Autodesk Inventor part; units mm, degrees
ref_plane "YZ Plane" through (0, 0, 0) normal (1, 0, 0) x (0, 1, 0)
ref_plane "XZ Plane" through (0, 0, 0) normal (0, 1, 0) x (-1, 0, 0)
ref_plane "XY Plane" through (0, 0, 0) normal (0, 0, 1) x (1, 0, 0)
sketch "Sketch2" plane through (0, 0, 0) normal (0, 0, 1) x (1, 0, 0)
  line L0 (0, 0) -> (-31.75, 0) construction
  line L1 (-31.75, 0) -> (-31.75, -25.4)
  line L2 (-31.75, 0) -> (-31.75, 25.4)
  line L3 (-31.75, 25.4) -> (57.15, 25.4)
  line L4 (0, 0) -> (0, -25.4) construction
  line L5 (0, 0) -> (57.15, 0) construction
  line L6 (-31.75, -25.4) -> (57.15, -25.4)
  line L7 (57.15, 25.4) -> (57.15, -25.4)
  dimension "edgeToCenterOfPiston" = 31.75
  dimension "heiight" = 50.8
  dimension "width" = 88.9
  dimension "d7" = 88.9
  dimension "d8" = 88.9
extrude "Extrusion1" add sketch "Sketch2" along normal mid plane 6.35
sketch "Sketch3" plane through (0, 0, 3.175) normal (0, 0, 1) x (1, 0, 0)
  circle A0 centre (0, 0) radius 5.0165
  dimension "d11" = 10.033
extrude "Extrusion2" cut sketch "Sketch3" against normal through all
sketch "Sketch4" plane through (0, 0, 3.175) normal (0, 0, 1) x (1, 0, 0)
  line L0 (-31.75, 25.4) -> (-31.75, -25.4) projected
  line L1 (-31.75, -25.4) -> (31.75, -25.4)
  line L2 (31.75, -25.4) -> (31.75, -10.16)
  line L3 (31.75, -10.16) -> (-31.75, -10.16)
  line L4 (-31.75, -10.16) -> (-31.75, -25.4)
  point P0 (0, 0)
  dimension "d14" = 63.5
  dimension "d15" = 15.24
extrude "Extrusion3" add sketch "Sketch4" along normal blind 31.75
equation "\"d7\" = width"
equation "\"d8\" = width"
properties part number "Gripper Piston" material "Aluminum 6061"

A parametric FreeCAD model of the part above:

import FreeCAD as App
import Part
import Sketcher

V = App.Vector
Q = App.Units.Quantity


def add_polygon(sketch, points):
    """Adds a closed chain of lines whose ends are joined by coincident constraints."""
    first, n = sketch.GeometryCount, len(points)
    for a, b in zip(points, points[1:] + points[:1]):
        sketch.addGeometry(Part.LineSegment(App.Vector(*a, 0), App.Vector(*b, 0)), False)
    for i in range(n):
        sketch.addConstraint(Sketcher.Constraint("Coincident", first + i, 2, first + (i + 1) % n, 1))

doc = App.newDocument("Part")
body = doc.addObject("PartDesign::Body", "Body")

# Sketch on XY plane
sketch1 = body.newObject("Sketcher::SketchObject", "Sketch")
sketch1.AttachmentSupport = (doc.getObject("XY_Plane"), [""])
sketch1.MapMode = "FlatFace"
add_polygon(sketch1, [(-32, 25), (-32, -25), (57, -25), (57, 25)])  # lines 0-3
sketch1.addConstraint([
    Sketcher.Constraint("Vertical", 0),
    Sketcher.Constraint("Horizontal", 1),
    Sketcher.Constraint("Vertical", 2),
    Sketcher.Constraint("Horizontal", 3),
    Sketcher.Constraint("DistanceY", 0, 2, 0, 1, Q("2 in")),
    Sketcher.Constraint("DistanceX", 1, 1, 1, 2, Q("3.5 in")),
    Sketcher.Constraint("DistanceX", 0, 2, -1, 1, Q("1.25 in")),
    Sketcher.Constraint("DistanceY", 0, 2, -1, 1, Q("1 in")),
])
pad1 = body.newObject("PartDesign::Pad", "Pad")
pad1.Profile = sketch1
pad1.Length = Q("0.25 in")
pad1.Midplane = True

# Sketch on XY plane
sketch2 = body.newObject("Sketcher::SketchObject", "Sketch001")
sketch2.AttachmentSupport = (doc.getObject("XY_Plane"), [""])
sketch2.MapMode = "FlatFace"
sketch2.AttachmentOffset = App.Placement(V(0, 0, 0.125 * 25.4), App.Rotation())
sketch2.addGeometry(Part.Circle(V(0, 0, 0), V(0, 0, 1), 5), False)
sketch2.addConstraint([
    Sketcher.Constraint("Coincident", 0, 3, -1, 1),
    Sketcher.Constraint("Diameter", 0, Q("0.395 in")),
])
pocket1 = body.newObject("PartDesign::Pocket", "Pocket")
pocket1.Profile = sketch2
pocket1.Type = "ThroughAll"

# Sketch on XY plane
sketch3 = body.newObject("Sketcher::SketchObject", "Sketch002")
sketch3.AttachmentSupport = (doc.getObject("XY_Plane"), [""])
sketch3.MapMode = "FlatFace"
sketch3.AttachmentOffset = App.Placement(V(0, 0, 0.125 * 25.4), App.Rotation())
add_polygon(sketch3, [(32, -10), (-32, -10), (-32, -25), (32, -25)])  # lines 0-3
sketch3.addConstraint([
    Sketcher.Constraint("Horizontal", 0),
    Sketcher.Constraint("Vertical", 1),
    Sketcher.Constraint("Horizontal", 2),
    Sketcher.Constraint("Vertical", 3),
    Sketcher.Constraint("DistanceX", 0, 2, 0, 1, Q("2.5 in")),
    Sketcher.Constraint("DistanceY", 1, 2, 1, 1, Q("0.6 in")),
    Sketcher.Constraint("DistanceY", 1, 2, -1, 1, Q("1 in")),
    Sketcher.Constraint("DistanceX", 0, 2, -1, 1, Q("1.25 in")),
])
pad2 = body.newObject("PartDesign::Pad", "Pad001")
pad2.Profile = sketch3
pad2.Length = Q("1.25 in")

doc.recompute()
